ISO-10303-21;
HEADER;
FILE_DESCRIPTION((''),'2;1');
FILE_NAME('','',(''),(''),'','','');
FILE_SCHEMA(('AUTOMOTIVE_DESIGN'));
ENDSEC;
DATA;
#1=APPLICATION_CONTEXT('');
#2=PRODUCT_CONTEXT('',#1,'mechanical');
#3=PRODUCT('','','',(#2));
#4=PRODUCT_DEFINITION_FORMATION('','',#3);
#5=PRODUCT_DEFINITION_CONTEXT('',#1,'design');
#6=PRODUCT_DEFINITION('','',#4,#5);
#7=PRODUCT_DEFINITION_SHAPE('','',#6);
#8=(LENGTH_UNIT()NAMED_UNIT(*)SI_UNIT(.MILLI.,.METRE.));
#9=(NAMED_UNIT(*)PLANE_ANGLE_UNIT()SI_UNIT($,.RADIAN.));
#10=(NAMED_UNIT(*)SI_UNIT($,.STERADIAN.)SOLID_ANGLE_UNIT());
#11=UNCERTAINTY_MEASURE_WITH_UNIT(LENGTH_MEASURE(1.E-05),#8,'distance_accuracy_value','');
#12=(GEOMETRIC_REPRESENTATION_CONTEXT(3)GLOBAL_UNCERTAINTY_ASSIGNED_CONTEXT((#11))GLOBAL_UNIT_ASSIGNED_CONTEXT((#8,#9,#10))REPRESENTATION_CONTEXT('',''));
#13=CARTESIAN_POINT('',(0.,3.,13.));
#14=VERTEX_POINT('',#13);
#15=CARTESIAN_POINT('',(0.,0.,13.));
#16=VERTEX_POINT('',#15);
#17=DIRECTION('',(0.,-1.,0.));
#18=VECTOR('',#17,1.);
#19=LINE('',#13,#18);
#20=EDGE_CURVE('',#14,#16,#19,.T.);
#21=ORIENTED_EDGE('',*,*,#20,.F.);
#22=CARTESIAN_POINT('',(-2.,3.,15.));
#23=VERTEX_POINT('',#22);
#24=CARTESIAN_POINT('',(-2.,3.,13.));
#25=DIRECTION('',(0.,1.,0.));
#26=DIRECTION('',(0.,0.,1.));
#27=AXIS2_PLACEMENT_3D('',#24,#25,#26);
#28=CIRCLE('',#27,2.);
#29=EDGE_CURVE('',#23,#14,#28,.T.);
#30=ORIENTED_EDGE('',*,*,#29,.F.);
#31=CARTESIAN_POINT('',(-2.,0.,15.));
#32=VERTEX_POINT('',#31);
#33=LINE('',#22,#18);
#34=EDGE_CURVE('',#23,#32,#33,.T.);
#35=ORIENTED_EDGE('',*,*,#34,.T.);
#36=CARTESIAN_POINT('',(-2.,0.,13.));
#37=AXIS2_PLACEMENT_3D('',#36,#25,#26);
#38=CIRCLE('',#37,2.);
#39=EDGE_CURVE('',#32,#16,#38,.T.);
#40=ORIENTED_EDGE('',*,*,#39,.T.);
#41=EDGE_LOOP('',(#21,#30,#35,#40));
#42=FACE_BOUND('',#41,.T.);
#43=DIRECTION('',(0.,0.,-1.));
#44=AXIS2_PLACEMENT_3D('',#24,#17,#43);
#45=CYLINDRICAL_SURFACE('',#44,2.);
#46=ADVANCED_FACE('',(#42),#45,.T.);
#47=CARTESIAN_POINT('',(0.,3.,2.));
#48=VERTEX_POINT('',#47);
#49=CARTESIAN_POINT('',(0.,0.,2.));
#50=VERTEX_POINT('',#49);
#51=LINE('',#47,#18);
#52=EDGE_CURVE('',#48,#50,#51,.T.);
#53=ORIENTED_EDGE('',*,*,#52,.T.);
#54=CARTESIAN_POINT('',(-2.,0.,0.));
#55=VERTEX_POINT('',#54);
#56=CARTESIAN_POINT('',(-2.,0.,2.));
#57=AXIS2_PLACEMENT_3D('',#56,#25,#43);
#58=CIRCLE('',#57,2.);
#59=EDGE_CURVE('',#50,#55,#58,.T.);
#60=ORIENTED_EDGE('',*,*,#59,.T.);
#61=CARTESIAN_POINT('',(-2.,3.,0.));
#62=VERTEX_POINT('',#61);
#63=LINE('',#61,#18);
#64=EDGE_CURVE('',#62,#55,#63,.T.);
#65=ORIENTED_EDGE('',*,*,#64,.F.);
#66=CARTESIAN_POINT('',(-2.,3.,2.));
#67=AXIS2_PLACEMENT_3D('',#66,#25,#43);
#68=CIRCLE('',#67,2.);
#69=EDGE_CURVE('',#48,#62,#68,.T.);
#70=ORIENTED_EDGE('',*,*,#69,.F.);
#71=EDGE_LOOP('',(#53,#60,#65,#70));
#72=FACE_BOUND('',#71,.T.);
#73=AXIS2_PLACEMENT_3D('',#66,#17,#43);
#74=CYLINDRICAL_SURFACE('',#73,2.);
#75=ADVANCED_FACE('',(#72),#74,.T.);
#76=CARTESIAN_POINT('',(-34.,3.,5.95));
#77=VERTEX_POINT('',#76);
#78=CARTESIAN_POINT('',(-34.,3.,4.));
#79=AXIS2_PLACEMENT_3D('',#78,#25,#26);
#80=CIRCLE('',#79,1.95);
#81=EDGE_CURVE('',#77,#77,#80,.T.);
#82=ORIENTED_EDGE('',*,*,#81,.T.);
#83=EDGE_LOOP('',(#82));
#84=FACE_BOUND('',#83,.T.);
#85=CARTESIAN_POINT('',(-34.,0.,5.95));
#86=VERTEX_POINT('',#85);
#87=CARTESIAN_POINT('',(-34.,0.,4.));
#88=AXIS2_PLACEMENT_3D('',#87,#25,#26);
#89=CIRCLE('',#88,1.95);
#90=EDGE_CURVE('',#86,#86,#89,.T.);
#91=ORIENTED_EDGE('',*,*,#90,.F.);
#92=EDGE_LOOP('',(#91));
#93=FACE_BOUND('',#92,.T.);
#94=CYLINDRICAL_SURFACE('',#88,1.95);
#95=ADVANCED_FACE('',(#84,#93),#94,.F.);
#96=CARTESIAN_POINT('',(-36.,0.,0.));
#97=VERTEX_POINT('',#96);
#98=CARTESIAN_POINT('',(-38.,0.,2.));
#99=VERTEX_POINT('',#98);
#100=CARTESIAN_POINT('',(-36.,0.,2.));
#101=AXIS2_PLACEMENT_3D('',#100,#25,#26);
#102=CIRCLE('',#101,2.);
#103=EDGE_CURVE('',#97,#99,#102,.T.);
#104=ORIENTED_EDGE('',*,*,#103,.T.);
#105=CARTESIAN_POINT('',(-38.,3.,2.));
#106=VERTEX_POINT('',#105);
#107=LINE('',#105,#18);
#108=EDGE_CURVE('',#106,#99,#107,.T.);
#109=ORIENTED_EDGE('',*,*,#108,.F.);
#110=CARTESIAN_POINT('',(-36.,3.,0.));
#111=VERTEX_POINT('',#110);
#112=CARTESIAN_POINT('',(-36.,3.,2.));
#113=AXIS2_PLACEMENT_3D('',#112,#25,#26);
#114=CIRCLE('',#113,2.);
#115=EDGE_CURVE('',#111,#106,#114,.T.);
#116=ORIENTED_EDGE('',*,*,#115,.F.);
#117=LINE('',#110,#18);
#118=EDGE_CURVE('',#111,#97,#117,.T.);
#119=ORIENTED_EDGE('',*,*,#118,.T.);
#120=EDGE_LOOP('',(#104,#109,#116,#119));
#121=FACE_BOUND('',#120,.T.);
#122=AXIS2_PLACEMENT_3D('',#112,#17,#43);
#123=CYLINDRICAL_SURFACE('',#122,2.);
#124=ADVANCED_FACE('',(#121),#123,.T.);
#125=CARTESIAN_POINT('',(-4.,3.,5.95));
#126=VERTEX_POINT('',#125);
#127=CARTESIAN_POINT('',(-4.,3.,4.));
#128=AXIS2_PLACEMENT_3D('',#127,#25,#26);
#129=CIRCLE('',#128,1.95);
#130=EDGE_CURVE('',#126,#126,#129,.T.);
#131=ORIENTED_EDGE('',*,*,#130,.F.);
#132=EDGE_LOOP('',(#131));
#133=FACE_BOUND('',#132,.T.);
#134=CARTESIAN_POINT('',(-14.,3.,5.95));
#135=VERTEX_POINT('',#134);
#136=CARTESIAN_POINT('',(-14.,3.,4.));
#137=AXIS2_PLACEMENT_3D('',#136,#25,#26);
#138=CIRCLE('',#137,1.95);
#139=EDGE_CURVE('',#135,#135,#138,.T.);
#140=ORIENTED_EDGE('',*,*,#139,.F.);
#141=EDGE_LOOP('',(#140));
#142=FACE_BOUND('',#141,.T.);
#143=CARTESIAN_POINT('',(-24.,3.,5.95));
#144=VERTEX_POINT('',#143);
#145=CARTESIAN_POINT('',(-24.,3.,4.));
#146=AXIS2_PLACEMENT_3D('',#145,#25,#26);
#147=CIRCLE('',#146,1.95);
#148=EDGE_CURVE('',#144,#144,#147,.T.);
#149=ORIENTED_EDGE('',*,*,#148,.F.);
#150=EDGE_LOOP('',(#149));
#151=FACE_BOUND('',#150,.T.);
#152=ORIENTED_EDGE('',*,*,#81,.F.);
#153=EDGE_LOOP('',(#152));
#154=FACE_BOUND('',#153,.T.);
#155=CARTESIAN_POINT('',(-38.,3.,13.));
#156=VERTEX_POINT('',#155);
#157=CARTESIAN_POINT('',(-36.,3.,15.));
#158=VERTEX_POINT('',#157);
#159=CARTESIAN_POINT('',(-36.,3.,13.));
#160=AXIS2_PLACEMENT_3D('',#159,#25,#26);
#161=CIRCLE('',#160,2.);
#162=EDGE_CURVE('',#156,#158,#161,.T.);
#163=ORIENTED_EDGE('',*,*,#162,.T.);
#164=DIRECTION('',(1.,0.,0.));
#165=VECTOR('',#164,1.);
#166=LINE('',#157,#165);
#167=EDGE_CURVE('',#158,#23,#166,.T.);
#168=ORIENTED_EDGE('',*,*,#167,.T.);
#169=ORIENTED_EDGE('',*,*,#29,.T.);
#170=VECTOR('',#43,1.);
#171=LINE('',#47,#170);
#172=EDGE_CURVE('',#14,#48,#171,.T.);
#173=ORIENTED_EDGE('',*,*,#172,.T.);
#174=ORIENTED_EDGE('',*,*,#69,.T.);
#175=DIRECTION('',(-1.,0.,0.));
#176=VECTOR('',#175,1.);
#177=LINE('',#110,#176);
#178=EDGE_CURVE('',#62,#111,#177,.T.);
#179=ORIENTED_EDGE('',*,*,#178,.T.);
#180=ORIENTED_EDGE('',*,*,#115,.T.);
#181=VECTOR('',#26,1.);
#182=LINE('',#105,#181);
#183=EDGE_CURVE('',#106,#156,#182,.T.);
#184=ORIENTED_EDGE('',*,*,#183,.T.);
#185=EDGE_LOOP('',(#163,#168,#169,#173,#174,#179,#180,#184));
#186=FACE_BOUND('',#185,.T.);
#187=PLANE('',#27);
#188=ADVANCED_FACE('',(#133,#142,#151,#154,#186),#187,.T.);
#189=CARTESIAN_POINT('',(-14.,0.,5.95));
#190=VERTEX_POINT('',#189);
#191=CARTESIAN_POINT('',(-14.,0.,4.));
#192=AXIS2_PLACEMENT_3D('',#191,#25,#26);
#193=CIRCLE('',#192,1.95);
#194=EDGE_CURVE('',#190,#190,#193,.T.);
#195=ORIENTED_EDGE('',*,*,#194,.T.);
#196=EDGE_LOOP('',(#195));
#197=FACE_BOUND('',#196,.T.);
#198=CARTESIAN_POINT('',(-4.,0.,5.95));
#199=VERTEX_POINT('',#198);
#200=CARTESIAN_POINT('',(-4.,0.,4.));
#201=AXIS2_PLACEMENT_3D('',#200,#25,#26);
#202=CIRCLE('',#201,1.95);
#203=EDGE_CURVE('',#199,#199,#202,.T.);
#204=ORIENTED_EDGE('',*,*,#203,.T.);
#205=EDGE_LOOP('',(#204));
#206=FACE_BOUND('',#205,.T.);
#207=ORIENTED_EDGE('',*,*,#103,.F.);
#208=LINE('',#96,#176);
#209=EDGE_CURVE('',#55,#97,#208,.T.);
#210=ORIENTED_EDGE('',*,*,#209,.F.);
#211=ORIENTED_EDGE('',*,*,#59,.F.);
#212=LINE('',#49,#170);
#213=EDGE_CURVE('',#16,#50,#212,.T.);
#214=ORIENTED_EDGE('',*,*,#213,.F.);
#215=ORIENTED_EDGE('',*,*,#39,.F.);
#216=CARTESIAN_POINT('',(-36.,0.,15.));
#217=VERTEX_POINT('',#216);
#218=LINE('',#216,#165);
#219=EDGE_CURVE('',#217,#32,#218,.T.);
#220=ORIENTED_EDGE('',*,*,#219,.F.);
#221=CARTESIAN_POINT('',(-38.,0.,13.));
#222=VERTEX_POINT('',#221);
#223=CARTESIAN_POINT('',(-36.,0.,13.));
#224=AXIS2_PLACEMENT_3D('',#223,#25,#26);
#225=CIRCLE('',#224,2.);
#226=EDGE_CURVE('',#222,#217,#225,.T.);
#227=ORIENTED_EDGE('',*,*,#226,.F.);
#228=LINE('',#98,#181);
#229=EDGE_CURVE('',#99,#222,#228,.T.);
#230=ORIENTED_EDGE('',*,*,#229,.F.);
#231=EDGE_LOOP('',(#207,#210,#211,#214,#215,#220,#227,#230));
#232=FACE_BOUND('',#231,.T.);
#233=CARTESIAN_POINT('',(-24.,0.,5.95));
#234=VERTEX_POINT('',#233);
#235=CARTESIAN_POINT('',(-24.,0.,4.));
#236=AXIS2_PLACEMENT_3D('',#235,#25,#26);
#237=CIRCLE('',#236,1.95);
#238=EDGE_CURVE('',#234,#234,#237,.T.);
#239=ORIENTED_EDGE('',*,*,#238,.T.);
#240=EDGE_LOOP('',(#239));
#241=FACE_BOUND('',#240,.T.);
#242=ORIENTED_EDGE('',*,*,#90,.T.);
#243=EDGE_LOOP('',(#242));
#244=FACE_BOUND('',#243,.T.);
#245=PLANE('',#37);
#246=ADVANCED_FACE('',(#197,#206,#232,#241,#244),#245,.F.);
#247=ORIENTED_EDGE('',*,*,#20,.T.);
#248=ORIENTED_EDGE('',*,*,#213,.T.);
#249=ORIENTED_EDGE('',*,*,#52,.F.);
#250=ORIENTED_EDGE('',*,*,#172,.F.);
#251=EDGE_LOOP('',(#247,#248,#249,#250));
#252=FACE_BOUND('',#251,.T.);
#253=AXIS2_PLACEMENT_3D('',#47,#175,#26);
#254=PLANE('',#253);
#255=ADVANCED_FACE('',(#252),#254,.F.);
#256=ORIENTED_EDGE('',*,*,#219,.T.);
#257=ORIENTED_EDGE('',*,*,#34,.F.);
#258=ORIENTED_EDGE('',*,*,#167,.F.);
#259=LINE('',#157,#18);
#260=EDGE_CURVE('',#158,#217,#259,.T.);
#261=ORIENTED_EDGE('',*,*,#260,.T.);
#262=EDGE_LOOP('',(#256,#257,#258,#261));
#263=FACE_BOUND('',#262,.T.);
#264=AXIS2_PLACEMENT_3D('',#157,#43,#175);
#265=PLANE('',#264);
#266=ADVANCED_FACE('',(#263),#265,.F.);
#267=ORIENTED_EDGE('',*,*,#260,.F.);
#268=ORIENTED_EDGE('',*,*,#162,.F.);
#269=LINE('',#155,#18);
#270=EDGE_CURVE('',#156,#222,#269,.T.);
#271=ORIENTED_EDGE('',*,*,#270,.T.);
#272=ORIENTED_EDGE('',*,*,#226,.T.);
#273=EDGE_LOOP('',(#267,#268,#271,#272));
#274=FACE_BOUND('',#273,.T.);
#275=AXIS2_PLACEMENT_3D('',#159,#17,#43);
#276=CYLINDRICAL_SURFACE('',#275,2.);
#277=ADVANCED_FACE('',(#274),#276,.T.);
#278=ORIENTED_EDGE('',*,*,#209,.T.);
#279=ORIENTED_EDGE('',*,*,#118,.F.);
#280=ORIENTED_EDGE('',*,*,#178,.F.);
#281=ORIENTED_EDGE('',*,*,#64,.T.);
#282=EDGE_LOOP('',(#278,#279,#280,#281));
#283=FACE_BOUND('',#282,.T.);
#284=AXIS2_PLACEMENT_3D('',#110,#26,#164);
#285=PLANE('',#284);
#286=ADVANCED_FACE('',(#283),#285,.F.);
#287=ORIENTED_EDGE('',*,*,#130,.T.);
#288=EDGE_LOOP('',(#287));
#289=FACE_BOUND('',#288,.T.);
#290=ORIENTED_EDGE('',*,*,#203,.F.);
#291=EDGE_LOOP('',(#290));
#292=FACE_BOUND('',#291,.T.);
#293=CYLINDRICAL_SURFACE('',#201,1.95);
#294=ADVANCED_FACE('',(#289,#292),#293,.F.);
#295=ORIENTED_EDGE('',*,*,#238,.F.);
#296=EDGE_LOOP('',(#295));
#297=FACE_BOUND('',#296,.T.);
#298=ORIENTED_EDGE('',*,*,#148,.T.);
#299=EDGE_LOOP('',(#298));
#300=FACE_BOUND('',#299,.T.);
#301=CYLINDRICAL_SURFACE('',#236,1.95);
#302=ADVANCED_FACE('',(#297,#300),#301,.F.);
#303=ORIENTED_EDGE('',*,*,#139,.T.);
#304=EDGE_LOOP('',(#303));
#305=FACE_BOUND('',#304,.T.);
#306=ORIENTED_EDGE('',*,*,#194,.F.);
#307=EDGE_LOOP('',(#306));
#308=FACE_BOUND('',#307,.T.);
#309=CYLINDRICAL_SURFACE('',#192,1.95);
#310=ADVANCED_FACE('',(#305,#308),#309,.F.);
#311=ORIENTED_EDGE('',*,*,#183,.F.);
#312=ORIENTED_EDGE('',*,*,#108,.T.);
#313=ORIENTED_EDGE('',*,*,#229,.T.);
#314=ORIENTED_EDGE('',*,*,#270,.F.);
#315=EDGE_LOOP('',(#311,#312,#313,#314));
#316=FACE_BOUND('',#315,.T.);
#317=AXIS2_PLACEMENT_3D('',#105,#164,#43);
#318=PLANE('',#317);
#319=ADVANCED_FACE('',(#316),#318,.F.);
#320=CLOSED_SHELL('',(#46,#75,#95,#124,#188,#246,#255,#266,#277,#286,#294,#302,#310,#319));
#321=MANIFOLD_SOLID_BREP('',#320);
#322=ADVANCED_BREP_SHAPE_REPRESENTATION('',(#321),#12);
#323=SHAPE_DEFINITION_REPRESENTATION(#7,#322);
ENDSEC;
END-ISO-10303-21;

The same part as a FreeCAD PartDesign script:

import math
import FreeCAD as App
import Part
import Sketcher

doc = App.newDocument("Part")
body = doc.addObject("PartDesign::Body", "Body")

# Sketch on XZ plane
sketch1 = body.newObject("Sketcher::SketchObject", "Sketch")
sketch1.AttachmentSupport = (doc.getObject("XZ_Plane"), [""])
sketch1.MapMode = "FlatFace"
sketch1.addGeometry(Part.LineSegment(App.Vector(-2, 0, 0), App.Vector(-36, 0, 0)), False)
sketch1.addGeometry(Part.ArcOfCircle(Part.Circle(App.Vector(-36, 2, 0), App.Vector(0, 0, 1), 2), math.radians(-180), math.radians(-90)), False)
sketch1.addGeometry(Part.LineSegment(App.Vector(-38, 2, 0), App.Vector(-38, 13, 0)), False)
sketch1.addGeometry(Part.ArcOfCircle(Part.Circle(App.Vector(-36, 13, 0), App.Vector(0, 0, 1), 2), math.radians(90), math.radians(180)), False)
sketch1.addGeometry(Part.LineSegment(App.Vector(-36, 15, 0), App.Vector(-2, 15, 0)), False)
sketch1.addGeometry(Part.ArcOfCircle(Part.Circle(App.Vector(-2, 13, 0), App.Vector(0, 0, 1), 2), math.radians(0), math.radians(90)), False)
sketch1.addGeometry(Part.LineSegment(App.Vector(0, 13, 0), App.Vector(0, 2, 0)), False)
sketch1.addGeometry(Part.ArcOfCircle(Part.Circle(App.Vector(-2, 2, 0), App.Vector(0, 0, 1), 2), math.radians(-90), math.radians(0)), False)
sketch1.addConstraint(Sketcher.Constraint("Tangent", 0, 2, 1, 2))
sketch1.addConstraint(Sketcher.Constraint("Tangent", 1, 1, 2, 1))
sketch1.addConstraint(Sketcher.Constraint("Tangent", 2, 2, 3, 2))
sketch1.addConstraint(Sketcher.Constraint("Tangent", 3, 1, 4, 1))
sketch1.addConstraint(Sketcher.Constraint("Tangent", 4, 2, 5, 2))
sketch1.addConstraint(Sketcher.Constraint("Tangent", 5, 1, 6, 1))
sketch1.addConstraint(Sketcher.Constraint("Tangent", 6, 2, 7, 2))
sketch1.addConstraint(Sketcher.Constraint("Tangent", 7, 1, 0, 1))
sketch1.addConstraint(Sketcher.Constraint("Horizontal", 0))
sketch1.addConstraint(Sketcher.Constraint("Vertical", 2))
sketch1.addConstraint(Sketcher.Constraint("Horizontal", 4))
sketch1.addConstraint(Sketcher.Constraint("Vertical", 6))
sketch1.addConstraint(Sketcher.Constraint("Equal", 1, 3))
sketch1.addConstraint(Sketcher.Constraint("Equal", 3, 5))
sketch1.addConstraint(Sketcher.Constraint("Equal", 5, 7))
sketch1.addConstraint(Sketcher.Constraint("PointOnObject", 0, 2, -1))
sketch1.addConstraint(Sketcher.Constraint("PointOnObject", 5, 1, -2))
sketch1.addConstraint(Sketcher.Constraint("Radius", 1, 2.0))
sketch1.addConstraint(Sketcher.Constraint("DistanceX", 0, 2, 0, 1, 34.0))
sketch1.addConstraint(Sketcher.Constraint("DistanceY", 2, 1, 2, 2, 11.0))
pad1 = body.newObject("PartDesign::Pad", "Pad")
pad1.Profile = sketch1
pad1.Length = 3
pad1.Reversed = True

# Sketch on XZ plane
sketch2 = body.newObject("Sketcher::SketchObject", "Sketch001")
sketch2.AttachmentSupport = (doc.getObject("XZ_Plane"), [""])
sketch2.MapMode = "FlatFace"
sketch2.AttachmentOffset = App.Placement(App.Vector(0, 0, -3), App.Rotation())
sketch2.addGeometry(Part.Circle(App.Vector(-4, 4, 0), App.Vector(0, 0, 1), 1.9), False)
sketch2.addGeometry(Part.Circle(App.Vector(-14, 4, 0), App.Vector(0, 0, 1), 1.9), False)
sketch2.addGeometry(Part.Circle(App.Vector(-24, 4, 0), App.Vector(0, 0, 1), 1.9), False)
sketch2.addGeometry(Part.Circle(App.Vector(-54, 4, 0), App.Vector(0, 0, 1), 1.9), False)
sketch2.addGeometry(Part.Circle(App.Vector(-34, 4, 0), App.Vector(0, 0, 1), 1.9), False)
sketch2.addGeometry(Part.Circle(App.Vector(-44, 4, 0), App.Vector(0, 0, 1), 1.9), False)
sketch2.addConstraint(Sketcher.Constraint("Equal", 0, 1))
sketch2.addConstraint(Sketcher.Constraint("Equal", 1, 2))
sketch2.addConstraint(Sketcher.Constraint("Equal", 2, 3))
sketch2.addConstraint(Sketcher.Constraint("Equal", 3, 4))
sketch2.addConstraint(Sketcher.Constraint("Equal", 4, 5))
sketch2.addConstraint(Sketcher.Constraint("Horizontal", 0, 3, 1, 3))
sketch2.addConstraint(Sketcher.Constraint("Horizontal", 1, 3, 2, 3))
sketch2.addConstraint(Sketcher.Constraint("Horizontal", 2, 3, 3, 3))
sketch2.addConstraint(Sketcher.Constraint("Horizontal", 3, 3, 4, 3))
sketch2.addConstraint(Sketcher.Constraint("Horizontal", 4, 3, 5, 3))
sketch2.addConstraint(Sketcher.Constraint("Diameter", 0, 3.9))
sketch2.addConstraint(Sketcher.Constraint("DistanceX", 0, 3, -1, 1, 4.0))
sketch2.addConstraint(Sketcher.Constraint("DistanceY", -1, 1, 0, 3, 4.0))
sketch2.addConstraint(Sketcher.Constraint("DistanceX", 1, 3, -1, 1, 14.0))
sketch2.addConstraint(Sketcher.Constraint("DistanceX", 2, 3, -1, 1, 24.0))
sketch2.addConstraint(Sketcher.Constraint("DistanceX", 3, 3, -1, 1, 54.0))
sketch2.addConstraint(Sketcher.Constraint("DistanceX", 4, 3, -1, 1, 34.0))
sketch2.addConstraint(Sketcher.Constraint("DistanceX", 5, 3, -1, 1, 44.0))
pocket1 = body.newObject("PartDesign::Pocket", "Pocket")
pocket1.Profile = sketch2
pocket1.Type = "ThroughAll"
pocket1.Reversed = True

doc.recompute()
